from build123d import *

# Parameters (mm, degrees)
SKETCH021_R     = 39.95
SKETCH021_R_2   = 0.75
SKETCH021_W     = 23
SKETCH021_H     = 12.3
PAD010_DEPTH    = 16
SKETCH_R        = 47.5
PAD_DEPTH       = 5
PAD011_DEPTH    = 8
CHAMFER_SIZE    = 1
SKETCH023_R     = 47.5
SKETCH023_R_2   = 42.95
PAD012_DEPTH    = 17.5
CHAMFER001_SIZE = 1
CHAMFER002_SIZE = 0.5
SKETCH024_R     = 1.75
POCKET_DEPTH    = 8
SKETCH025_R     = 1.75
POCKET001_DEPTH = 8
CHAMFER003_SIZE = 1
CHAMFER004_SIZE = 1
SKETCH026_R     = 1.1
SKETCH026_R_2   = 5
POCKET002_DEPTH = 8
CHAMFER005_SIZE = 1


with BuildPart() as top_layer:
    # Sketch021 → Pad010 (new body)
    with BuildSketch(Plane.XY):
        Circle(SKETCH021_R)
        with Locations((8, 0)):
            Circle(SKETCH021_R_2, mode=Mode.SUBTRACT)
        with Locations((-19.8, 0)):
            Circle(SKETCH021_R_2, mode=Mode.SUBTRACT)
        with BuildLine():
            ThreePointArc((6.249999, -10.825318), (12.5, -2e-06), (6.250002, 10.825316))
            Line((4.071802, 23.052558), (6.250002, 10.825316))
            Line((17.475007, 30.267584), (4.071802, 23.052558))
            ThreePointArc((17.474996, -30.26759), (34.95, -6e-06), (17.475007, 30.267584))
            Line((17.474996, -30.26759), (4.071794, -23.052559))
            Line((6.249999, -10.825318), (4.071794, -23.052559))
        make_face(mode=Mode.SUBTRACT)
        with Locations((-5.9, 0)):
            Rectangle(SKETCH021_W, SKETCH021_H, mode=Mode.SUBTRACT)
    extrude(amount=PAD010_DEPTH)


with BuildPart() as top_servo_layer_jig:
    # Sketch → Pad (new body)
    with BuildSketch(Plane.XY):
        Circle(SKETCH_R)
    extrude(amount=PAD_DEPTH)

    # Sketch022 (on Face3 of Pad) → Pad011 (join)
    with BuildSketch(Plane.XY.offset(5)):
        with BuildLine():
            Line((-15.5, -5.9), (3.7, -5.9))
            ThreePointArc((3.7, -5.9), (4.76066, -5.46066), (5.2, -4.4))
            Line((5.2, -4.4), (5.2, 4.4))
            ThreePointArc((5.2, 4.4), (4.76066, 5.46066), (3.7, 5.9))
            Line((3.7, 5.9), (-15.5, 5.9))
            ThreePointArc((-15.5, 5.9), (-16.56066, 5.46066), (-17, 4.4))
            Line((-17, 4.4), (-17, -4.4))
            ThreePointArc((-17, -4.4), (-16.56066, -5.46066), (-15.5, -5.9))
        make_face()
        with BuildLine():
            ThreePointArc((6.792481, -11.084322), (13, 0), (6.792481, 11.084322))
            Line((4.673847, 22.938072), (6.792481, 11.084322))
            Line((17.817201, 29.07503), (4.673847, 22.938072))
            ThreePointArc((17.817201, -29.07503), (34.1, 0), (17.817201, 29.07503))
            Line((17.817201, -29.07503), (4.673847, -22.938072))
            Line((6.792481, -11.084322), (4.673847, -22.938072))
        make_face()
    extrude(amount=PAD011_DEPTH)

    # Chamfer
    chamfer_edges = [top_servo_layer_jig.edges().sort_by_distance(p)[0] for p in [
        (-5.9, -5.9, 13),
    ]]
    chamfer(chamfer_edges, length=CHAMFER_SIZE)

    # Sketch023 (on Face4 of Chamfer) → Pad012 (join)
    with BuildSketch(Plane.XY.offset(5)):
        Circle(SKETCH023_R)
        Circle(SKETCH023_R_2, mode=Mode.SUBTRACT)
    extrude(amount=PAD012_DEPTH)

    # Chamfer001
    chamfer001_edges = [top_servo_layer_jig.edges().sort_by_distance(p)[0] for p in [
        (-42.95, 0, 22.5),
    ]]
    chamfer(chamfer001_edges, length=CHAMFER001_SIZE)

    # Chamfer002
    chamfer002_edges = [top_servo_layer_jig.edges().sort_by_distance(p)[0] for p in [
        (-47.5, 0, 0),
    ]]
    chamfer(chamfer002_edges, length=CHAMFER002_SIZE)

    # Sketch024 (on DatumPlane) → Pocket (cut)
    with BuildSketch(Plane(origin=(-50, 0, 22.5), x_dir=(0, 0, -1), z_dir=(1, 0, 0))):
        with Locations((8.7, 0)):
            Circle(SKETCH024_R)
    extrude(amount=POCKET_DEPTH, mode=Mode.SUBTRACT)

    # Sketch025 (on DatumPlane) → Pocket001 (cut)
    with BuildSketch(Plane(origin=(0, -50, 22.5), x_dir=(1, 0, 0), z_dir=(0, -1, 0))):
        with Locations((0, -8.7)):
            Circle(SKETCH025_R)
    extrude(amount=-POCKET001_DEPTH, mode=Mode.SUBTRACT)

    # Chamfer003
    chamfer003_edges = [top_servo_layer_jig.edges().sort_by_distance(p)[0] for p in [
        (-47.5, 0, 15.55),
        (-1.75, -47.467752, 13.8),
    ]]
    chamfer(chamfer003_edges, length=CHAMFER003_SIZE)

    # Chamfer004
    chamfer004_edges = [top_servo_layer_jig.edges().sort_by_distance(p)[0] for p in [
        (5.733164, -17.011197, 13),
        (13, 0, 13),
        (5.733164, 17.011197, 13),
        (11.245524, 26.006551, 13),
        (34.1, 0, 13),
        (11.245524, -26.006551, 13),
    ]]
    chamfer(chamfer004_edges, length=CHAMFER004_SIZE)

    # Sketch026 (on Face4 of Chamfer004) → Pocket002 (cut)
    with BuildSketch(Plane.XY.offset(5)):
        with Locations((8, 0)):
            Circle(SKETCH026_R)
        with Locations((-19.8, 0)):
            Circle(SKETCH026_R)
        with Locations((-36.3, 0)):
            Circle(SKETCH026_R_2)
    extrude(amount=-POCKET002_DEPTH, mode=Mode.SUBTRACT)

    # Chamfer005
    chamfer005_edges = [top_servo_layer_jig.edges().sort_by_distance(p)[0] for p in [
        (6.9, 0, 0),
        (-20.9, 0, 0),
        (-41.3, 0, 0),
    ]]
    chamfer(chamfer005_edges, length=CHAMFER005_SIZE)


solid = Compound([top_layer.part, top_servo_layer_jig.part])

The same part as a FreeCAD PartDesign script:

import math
import FreeCAD as App
import Part
import Sketcher

V = App.Vector


def edges_at(feature, points):
    """Names of the edges that pass closest to the given points."""
    edges = feature.Shape.Edges
    near = lambda p: min(range(len(edges)), key=lambda i: edges[i].distToShape(Part.Vertex(*p))[0])
    return sorted({f"Edge{near(p) + 1}" for p in points})

doc = App.newDocument("Part")
body = doc.addObject("PartDesign::Body", "Body")

# Sketch on XY plane
sketch1 = body.newObject("Sketcher::SketchObject", "Sketch")
sketch1.AttachmentSupport = (doc.getObject("XY_Plane"), [""])
sketch1.MapMode = "FlatFace"
sketch1.addGeometry([
    Part.Circle(V(0, 0, 0), V(0, 0, 1), 39.95),  # 0
    Part.LineSegment(V(4.071794, -23.052559, 0), V(6.249999, -10.825318, 0)),  # 1
    Part.ArcOfCircle(Part.Circle(V(0, 0, 0), V(0, 0, 1), 12.5), math.radians(-60.000006), math.radians(59.999991)),  # 2
    Part.LineSegment(V(6.250002, 10.825316, 0), V(4.071802, 23.052558, 0)),  # 3
    Part.LineSegment(V(4.071802, 23.052558, 0), V(17.475007, 30.267584, 0)),  # 4
    Part.ArcOfCircle(Part.Circle(V(0, 0, 0), V(0, 0, 1), 34.95), math.radians(-60.000008), math.radians(59.999987)),  # 5
    Part.LineSegment(V(17.474996, -30.26759, 0), V(4.071794, -23.052559, 0)),  # 6
    Part.Circle(V(-19.8, 0, 0), V(0, 0, 1), 0.75),  # 7
    Part.LineSegment(V(5.6, -6.15, 0), V(-17.4, -6.15, 0)),  # 8
    Part.LineSegment(V(-17.4, -6.15, 0), V(-17.4, 6.15, 0)),  # 9
    Part.LineSegment(V(-17.4, 6.15, 0), V(5.6, 6.15, 0)),  # 10
    Part.LineSegment(V(5.6, 6.15, 0), V(5.6, -6.15, 0)),  # 11
    Part.Circle(V(8, 0, 0), V(0, 0, 1), 0.75),  # 12
], False)
sketch1.addConstraint([
    Sketcher.Constraint("Coincident", 1, 2, 2, 1),
    Sketcher.Constraint("Coincident", 2, 2, 3, 1),
    Sketcher.Constraint("Coincident", 3, 2, 4, 1),
    Sketcher.Constraint("Coincident", 4, 2, 5, 2),
    Sketcher.Constraint("Coincident", 5, 1, 6, 1),
    Sketcher.Constraint("Coincident", 6, 2, 1, 1),
    Sketcher.Constraint("Coincident", 8, 2, 9, 1),
    Sketcher.Constraint("Coincident", 9, 2, 10, 1),
    Sketcher.Constraint("Coincident", 10, 2, 11, 1),
    Sketcher.Constraint("Coincident", 11, 2, 8, 1),
    Sketcher.Constraint("Horizontal", 8),
    Sketcher.Constraint("Vertical", 9),
    Sketcher.Constraint("Horizontal", 10),
    Sketcher.Constraint("Vertical", 11),
    Sketcher.Constraint("Coincident", 0, 3, -1, 1),
    Sketcher.Constraint("Coincident", 2, 3, -1, 1),
    Sketcher.Constraint("Coincident", 5, 3, -1, 1),
    Sketcher.Constraint("Equal", 7, 12),
    Sketcher.Constraint("Symmetric", 3, 2, 6, 2, -1),
    Sketcher.Constraint("PointOnObject", 7, 3, -1),
    Sketcher.Constraint("PointOnObject", 12, 3, -1),
    Sketcher.Constraint("Equal", 1, 3),
    Sketcher.Constraint("Equal", 4, 6),
    Sketcher.Constraint("Diameter", 0, 79.9),
    Sketcher.Constraint("Diameter", 7, 1.5),
    Sketcher.Constraint("Radius", 2, 12.5),
    Sketcher.Constraint("DistanceX", 8, 2, 8, 1, 23.0),
    Sketcher.Constraint("Radius", 5, 34.95),
    Sketcher.Constraint("DistanceY", 9, 1, 9, 2, 12.3),
    Sketcher.Constraint("DistanceX", -1, 1, 12, 3, 8.0),
    Sketcher.Constraint("DistanceX", 7, 3, -1, 1, 19.8),
    Sketcher.Constraint("DistanceX", 8, 2, -1, 1, 17.4),
    Sketcher.Constraint("DistanceX", -1, 1, 1, 2, 6.249999),
    Sketcher.Constraint("DistanceY", 8, 2, -1, 1, 6.15),
    Sketcher.Constraint("DistanceX", 3, 2, 2, 2, 2.1782),
    Sketcher.Constraint("DistanceY", -1, 1, 3, 2, 23.052558),
    Sketcher.Constraint("DistanceY", 5, 1, -1, 1, 30.26759),
])
pad1 = body.newObject("PartDesign::Pad", "Pad")
pad1.Profile = sketch1
pad1.Length = 16
body2 = doc.addObject("PartDesign::Body", "Body001")

# Sketch on XY plane
sketch2 = body2.newObject("Sketcher::SketchObject", "Sketch001")
sketch2.AttachmentSupport = (doc.getObject("XY_Plane001"), [""])
sketch2.MapMode = "FlatFace"
sketch2.addGeometry(Part.Circle(V(0, 0, 0), V(0, 0, 1), 47.5), False)
sketch2.addConstraint([
    Sketcher.Constraint("Coincident", 0, 3, -1, 1),
    Sketcher.Constraint("Diameter", 0, 95.0),
])
pad2 = body2.newObject("PartDesign::Pad", "Pad001")
pad2.Profile = sketch2
pad2.Length = 5

# Sketch on XY plane
sketch3 = body2.newObject("Sketcher::SketchObject", "Sketch002")
sketch3.AttachmentSupport = (doc.getObject("XY_Plane001"), [""])
sketch3.MapMode = "FlatFace"
sketch3.AttachmentOffset = App.Placement(V(0, 0, 5), App.Rotation())
sketch3.addGeometry([
    Part.LineSegment(V(-15.5, -5.9, 0), V(3.7, -5.9, 0)),  # 0
    Part.ArcOfCircle(Part.Circle(V(3.699999, -4.399999, 0), V(0, 0, 1), 1.500001), math.radians(-89.999978), math.radians(-0.000022)),  # 1
    Part.LineSegment(V(5.2, -4.4, 0), V(5.2, 4.4, 0)),  # 2
    Part.ArcOfCircle(Part.Circle(V(3.699999, 4.399999, 0), V(0, 0, 1), 1.500001), math.radians(0.000022), math.radians(89.999978)),  # 3
    Part.LineSegment(V(3.7, 5.9, 0), V(-15.5, 5.9, 0)),  # 4
    Part.ArcOfCircle(Part.Circle(V(-15.499999, 4.399999, 0), V(0, 0, 1), 1.500001), math.radians(90.000022), math.radians(179.999978)),  # 5
    Part.LineSegment(V(-17, 4.4, 0), V(-17, -4.4, 0)),  # 6
    Part.ArcOfCircle(Part.Circle(V(-15.499999, -4.399999, 0), V(0, 0, 1), 1.500001), math.radians(-179.999978), math.radians(-90.000022)),  # 7
    Part.ArcOfCircle(Part.Circle(V(0.000001, 0, 0), V(0, 0, 1), 12.999999), math.radians(-58.500003), math.radians(58.500003)),  # 8
    Part.LineSegment(V(6.792481, -11.084322, 0), V(4.673847, -22.938072, 0)),  # 9
    Part.LineSegment(V(4.673847, -22.938072, 0), V(17.817201, -29.07503, 0)),  # 10
    Part.ArcOfCircle(Part.Circle(V(-0.000001, 0, 0), V(0, 0, 1), 34.100001), math.radians(-58.5), math.radians(58.5)),  # 11
    Part.LineSegment(V(17.817201, 29.07503, 0), V(4.673847, 22.938072, 0)),  # 12
    Part.LineSegment(V(4.673847, 22.938072, 0), V(6.792481, 11.084322, 0)),  # 13
], False)
sketch3.addConstraint([
    Sketcher.Constraint("Tangent", 0, 2, 1, 1),
    Sketcher.Constraint("Tangent", 1, 2, 2, 1),
    Sketcher.Constraint("Tangent", 2, 2, 3, 1),
    Sketcher.Constraint("Tangent", 3, 2, 4, 1),
    Sketcher.Constraint("Tangent", 4, 2, 5, 1),
    Sketcher.Constraint("Tangent", 5, 2, 6, 1),
    Sketcher.Constraint("Tangent", 6, 2, 7, 1),
    Sketcher.Constraint("Tangent", 7, 2, 0, 1),
    Sketcher.Constraint("Coincident", 8, 1, 9, 1),
    Sketcher.Constraint("Coincident", 9, 2, 10, 1),
    Sketcher.Constraint("Coincident", 10, 2, 11, 1),
    Sketcher.Constraint("Coincident", 11, 2, 12, 1),
    Sketcher.Constraint("Coincident", 12, 2, 13, 1),
    Sketcher.Constraint("Coincident", 13, 2, 8, 2),
    Sketcher.Constraint("Horizontal", 0),
    Sketcher.Constraint("Vertical", 2),
    Sketcher.Constraint("Horizontal", 4),
    Sketcher.Constraint("Vertical", 6),
    Sketcher.Constraint("Coincident", 8, 3, -1, 1),
    Sketcher.Constraint("Coincident", 11, 3, -1, 1),
    Sketcher.Constraint("Equal", 1, 3),
    Sketcher.Constraint("Equal", 3, 5),
    Sketcher.Constraint("Equal", 5, 7),
    Sketcher.Constraint("Symmetric", 9, 2, 12, 2, -1),
    Sketcher.Constraint("Vertical", 10, 2, 11, 2),
    Sketcher.Constraint("Vertical", 8, 1, 13, 2),
    Sketcher.Constraint("Radius", 8, 12.999999),
    Sketcher.Constraint("Radius", 1, 1.500001),
    Sketcher.Constraint("Radius", 11, 34.100001),
    Sketcher.Constraint("DistanceX", 0, 1, 0, 2, 19.2),
    Sketcher.Constraint("DistanceY", 2, 1, 2, 2, 8.8),
    Sketcher.Constraint("DistanceX", 5, 2, -1, 1, 17.0),
    Sketcher.Constraint("DistanceY", 1, 3, -1, 1, 4.399999),
    Sketcher.Constraint("DistanceX", -1, 1, 10, 2, 17.817201),
    Sketcher.Constraint("DistanceX", -1, 1, 8, 1, 6.792481),
    Sketcher.Constraint("DistanceY", 9, 2, -1, 1, 22.938072),
    Sketcher.Constraint("Distance", 9, 12.041595),
])
pad3 = body2.newObject("PartDesign::Pad", "Pad002")
pad3.Profile = sketch3
pad3.Length = 8
doc.recompute()

chamfer = body2.newObject("PartDesign::Chamfer", "Chamfer")
chamfer.Base = (pad3, edges_at(pad3, [(-5.9, -5.9, 13)]))
chamfer.Size = 1

# Sketch on XY plane
sketch4 = body2.newObject("Sketcher::SketchObject", "Sketch003")
sketch4.AttachmentSupport = (doc.getObject("XY_Plane001"), [""])
sketch4.MapMode = "FlatFace"
sketch4.AttachmentOffset = App.Placement(V(0, 0, 5), App.Rotation())
sketch4.addGeometry([
    Part.Circle(V(0, 0, 0), V(0, 0, 1), 47.5),
    Part.Circle(V(0, 0, 0), V(0, 0, 1), 42.95),
], False)
sketch4.addConstraint([
    Sketcher.Constraint("Coincident", 0, 3, -1, 1),
    Sketcher.Constraint("Coincident", 1, 3, -1, 1),
    Sketcher.Constraint("Diameter", 0, 95.0),
    Sketcher.Constraint("Diameter", 1, 85.9),
])
pad4 = body2.newObject("PartDesign::Pad", "Pad003")
pad4.Profile = sketch4
pad4.Length = 17.5
doc.recompute()

chamfer2 = body2.newObject("PartDesign::Chamfer", "Chamfer001")
chamfer2.Base = (pad4, edges_at(pad4, [(-42.95, 0, 22.5)]))
chamfer2.Size = 1
doc.recompute()

chamfer3 = body2.newObject("PartDesign::Chamfer", "Chamfer002")
chamfer3.Base = (chamfer2, edges_at(chamfer2, [(-47.5, 0, 0)]))
chamfer3.Size = 0.5

# Sketch on YZ plane
sketch5 = body2.newObject("Sketcher::SketchObject", "Sketch004")
sketch5.AttachmentSupport = (doc.getObject("YZ_Plane001"), [""])
sketch5.MapMode = "FlatFace"
sketch5.AttachmentOffset = App.Placement(V(0, 0, -50), App.Rotation())
sketch5.addGeometry(Part.Circle(V(0, 13.8, 0), V(0, 0, 1), 1.75), False)
sketch5.addConstraint([
    Sketcher.Constraint("PointOnObject", 0, 3, -2),
    Sketcher.Constraint("Diameter", 0, 3.5),
    Sketcher.Constraint("DistanceY", -1, 1, 0, 3, 13.8),
])
pocket1 = body2.newObject("PartDesign::Pocket", "Pocket")
pocket1.Profile = sketch5
pocket1.Length = 8
pocket1.Reversed = True

# Sketch on XZ plane
sketch6 = body2.newObject("Sketcher::SketchObject", "Sketch005")
sketch6.AttachmentSupport = (doc.getObject("XZ_Plane001"), [""])
sketch6.MapMode = "FlatFace"
sketch6.AttachmentOffset = App.Placement(V(0, 0, 50), App.Rotation())
sketch6.addGeometry(Part.Circle(V(0, 13.8, 0), V(0, 0, 1), 1.75), False)
sketch6.addConstraint([
    Sketcher.Constraint("PointOnObject", 0, 3, -2),
    Sketcher.Constraint("Diameter", 0, 3.5),
    Sketcher.Constraint("DistanceY", -1, 1, 0, 3, 13.8),
])
pocket2 = body2.newObject("PartDesign::Pocket", "Pocket001")
pocket2.Profile = sketch6
pocket2.Length = 8
doc.recompute()

chamfer4 = body2.newObject("PartDesign::Chamfer", "Chamfer003")
chamfer4.Base = (pocket2, edges_at(pocket2, [(-47.5, 0, 15.55), (-1.75, -47.468, 13.8)]))
chamfer4.Size = 1
doc.recompute()

chamfer5 = body2.newObject("PartDesign::Chamfer", "Chamfer004")
chamfer5.Base = (chamfer4, edges_at(chamfer4, [
    (5.733, -17.011, 13),
    (13, 0, 13),
    (5.733, 17.011, 13),
    (11.246, 26.007, 13),
    (34.1, 0, 13),
    (11.246, -26.007, 13),
]))
chamfer5.Size = 1

# Sketch on XY plane
sketch7 = body2.newObject("Sketcher::SketchObject", "Sketch006")
sketch7.AttachmentSupport = (doc.getObject("XY_Plane001"), [""])
sketch7.MapMode = "FlatFace"
sketch7.AttachmentOffset = App.Placement(V(0, 0, 5), App.Rotation())
sketch7.addGeometry([
    Part.Circle(V(8, 0, 0), V(0, 0, 1), 1.1),
    Part.Circle(V(-19.8, 0, 0), V(0, 0, 1), 1.1),
    Part.Circle(V(-36.3, 0, 0), V(0, 0, 1), 5),
], False)
sketch7.addConstraint([
    Sketcher.Constraint("Equal", 0, 1),
    Sketcher.Constraint("PointOnObject", 0, 3, -1),
    Sketcher.Constraint("PointOnObject", 1, 3, -1),
    Sketcher.Constraint("PointOnObject", 2, 3, -1),
    Sketcher.Constraint("Diameter", 2, 10.0),
    Sketcher.Constraint("Diameter", 0, 2.2),
    Sketcher.Constraint("DistanceX", -1, 1, 0, 3, 8.0),
    Sketcher.Constraint("DistanceX", 1, 3, -1, 1, 19.8),
    Sketcher.Constraint("DistanceX", 2, 3, -1, 1, 36.3),
])
pocket3 = body2.newObject("PartDesign::Pocket", "Pocket002")
pocket3.Profile = sketch7
pocket3.Length = 8
doc.recompute()

chamfer6 = body2.newObject("PartDesign::Chamfer", "Chamfer005")
chamfer6.Base = (pocket3, edges_at(pocket3, [(6.9, 0, 0), (-20.9, 0, 0), (-41.3, 0, 0)]))
chamfer6.Size = 1

doc.recompute()
